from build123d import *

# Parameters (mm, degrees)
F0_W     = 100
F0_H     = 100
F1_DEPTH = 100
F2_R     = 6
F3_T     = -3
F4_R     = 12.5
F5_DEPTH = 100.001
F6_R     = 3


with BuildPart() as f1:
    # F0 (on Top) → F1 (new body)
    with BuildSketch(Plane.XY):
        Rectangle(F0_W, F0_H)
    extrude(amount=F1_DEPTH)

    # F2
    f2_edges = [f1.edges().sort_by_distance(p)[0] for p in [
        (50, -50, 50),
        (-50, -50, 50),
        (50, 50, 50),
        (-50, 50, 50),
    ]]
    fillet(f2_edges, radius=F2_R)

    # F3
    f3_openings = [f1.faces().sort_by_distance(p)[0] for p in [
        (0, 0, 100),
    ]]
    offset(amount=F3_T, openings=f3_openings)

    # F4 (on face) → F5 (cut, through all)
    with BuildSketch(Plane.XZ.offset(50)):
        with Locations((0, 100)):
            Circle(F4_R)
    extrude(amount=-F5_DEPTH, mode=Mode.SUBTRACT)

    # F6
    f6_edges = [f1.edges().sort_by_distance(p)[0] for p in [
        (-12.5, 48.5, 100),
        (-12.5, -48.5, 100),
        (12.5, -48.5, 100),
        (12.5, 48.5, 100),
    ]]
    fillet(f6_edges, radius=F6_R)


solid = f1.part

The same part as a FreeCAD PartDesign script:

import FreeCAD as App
import Part
import Sketcher

V = App.Vector
Q = App.Units.Quantity


def edges_at(feature, points):
    """Names of the edges that pass closest to the given points."""
    edges = feature.Shape.Edges
    near = lambda p: min(range(len(edges)), key=lambda i: edges[i].distToShape(Part.Vertex(*p))[0])
    return sorted({f"Edge{near(p) + 1}" for p in points})


def faces_at(feature, points):
    """Names of the faces that lie closest to the given points."""
    faces = feature.Shape.Faces
    near = lambda p: min(range(len(faces)), key=lambda i: faces[i].distToShape(Part.Vertex(*p))[0])
    return sorted({f"Face{near(p) + 1}" for p in points})


def add_polygon(sketch, points):
    """Adds a closed chain of lines whose ends are joined by coincident constraints."""
    first, n = sketch.GeometryCount, len(points)
    for a, b in zip(points, points[1:] + points[:1]):
        sketch.addGeometry(Part.LineSegment(App.Vector(*a, 0), App.Vector(*b, 0)), False)
    for i in range(n):
        sketch.addConstraint(Sketcher.Constraint("Coincident", first + i, 2, first + (i + 1) % n, 1))

doc = App.newDocument("Part")
params = doc.addObject("Spreadsheet::Sheet", "Params")
for row, (alias, value) in enumerate([
    ("sketch1_width", "100 mm"),
    ("pad1_length", "100 mm"),
    ("fillet_radius", "6 mm"),
    ("thickness_wall", "3 mm"),
    ("sketch2_diameter", "25 mm"),
    ("fillet2_radius", "3 mm"),
], start=1):
    params.set(f"A{row}", alias)
    params.set(f"B{row}", "=" + value)
    params.setAlias(f"B{row}", alias)

body = doc.addObject("PartDesign::Body", "Body")

sketch1 = body.newObject("Sketcher::SketchObject", "Sketch")
sketch1.AttachmentSupport = (doc.getObject("XY_Plane"), [""])
sketch1.MapMode = "FlatFace"
add_polygon(sketch1, [(-50, 50), (-50, -50), (50, -50), (50, 50)])
sketch1.addConstraint([
    Sketcher.Constraint("Vertical", 0),
    Sketcher.Constraint("Horizontal", 1),
    Sketcher.Constraint("Vertical", 2),
    Sketcher.Constraint("Horizontal", 3),
    Sketcher.Constraint("Symmetric", 0, 2, 2, 2, -1, 1),
    Sketcher.Constraint("Equal", 3, 0),
    Sketcher.Constraint("DistanceX", 1, 1, 1, 2, Q("100 mm")),
])
sketch1.setExpression("Constraints[10]", "Params.sketch1_width")
pad1 = body.newObject("PartDesign::Pad", "Pad")
pad1.Profile = sketch1
pad1.setExpression("Length", "Params.pad1_length")
doc.recompute()

fillet = body.newObject("PartDesign::Fillet", "Fillet")
fillet.Base = (pad1, edges_at(pad1, [
    (50, -50, 50),
    (-50, -50, 50),
    (50, 50, 50),
    (-50, 50, 50),
]))
fillet.setExpression("Radius", "Params.fillet_radius")
doc.recompute()

thickness = body.newObject("PartDesign::Thickness", "Thickness")
thickness.Base = (fillet, faces_at(fillet, [(0, 0, 100)]))
thickness.setExpression("Value", "Params.thickness_wall")
thickness.Reversed = True
thickness.Join = "Arc"

sketch2 = body.newObject("Sketcher::SketchObject", "Sketch001")
sketch2.AttachmentSupport = (doc.getObject("XZ_Plane"), [""])
sketch2.MapMode = "FlatFace"
sketch2.AttachmentOffset = App.Placement(V(0, 0, 50), App.Rotation())
sketch2.addGeometry(Part.Circle(V(0, 100, 0), V(0, 0, 1), 12.5), False)
sketch2.addConstraint([
    Sketcher.Constraint("PointOnObject", 0, 3, -2),
    Sketcher.Constraint("Diameter", 0, Q("25 mm")),
    Sketcher.Constraint("DistanceY", -1, 1, 0, 3, Q("100 mm")),
])
sketch2.setExpression("Constraints[1]", "Params.sketch2_diameter")
pocket1 = body.newObject("PartDesign::Pocket", "Pocket")
pocket1.Profile = sketch2
pocket1.Type = "ThroughAll"
doc.recompute()

fillet2 = body.newObject("PartDesign::Fillet", "Fillet001")
fillet2.Base = (pocket1, edges_at(pocket1, [
    (-12.5, 48.5, 100),
    (-12.5, -48.5, 100),
    (12.5, -48.5, 100),
    (12.5, 48.5, 100),
]))
fillet2.setExpression("Radius", "Params.fillet2_radius")

doc.recompute()
